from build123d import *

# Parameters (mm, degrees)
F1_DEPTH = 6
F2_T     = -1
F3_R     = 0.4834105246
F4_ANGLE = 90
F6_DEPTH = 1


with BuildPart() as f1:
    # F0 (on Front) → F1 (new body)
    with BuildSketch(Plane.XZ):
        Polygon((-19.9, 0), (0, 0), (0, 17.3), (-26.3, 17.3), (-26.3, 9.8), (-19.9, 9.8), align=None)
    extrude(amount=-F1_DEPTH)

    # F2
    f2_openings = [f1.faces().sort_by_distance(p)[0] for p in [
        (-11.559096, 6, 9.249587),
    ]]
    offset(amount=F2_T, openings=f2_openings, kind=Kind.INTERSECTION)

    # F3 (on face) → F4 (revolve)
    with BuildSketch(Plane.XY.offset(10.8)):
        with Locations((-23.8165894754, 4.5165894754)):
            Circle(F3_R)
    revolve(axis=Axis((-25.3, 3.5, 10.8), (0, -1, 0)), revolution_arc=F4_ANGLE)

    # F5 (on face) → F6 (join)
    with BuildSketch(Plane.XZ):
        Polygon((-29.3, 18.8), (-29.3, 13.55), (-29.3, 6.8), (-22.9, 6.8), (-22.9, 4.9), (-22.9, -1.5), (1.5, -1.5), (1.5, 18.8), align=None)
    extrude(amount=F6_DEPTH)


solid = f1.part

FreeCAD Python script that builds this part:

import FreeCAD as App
import Part
import Sketcher
Q = App.Units.Quantity


def faces_at(feature, points):
    """Names of the faces that lie closest to the given points."""
    faces = feature.Shape.Faces
    near = lambda p: min(range(len(faces)), key=lambda i: faces[i].distToShape(Part.Vertex(*p))[0])
    return sorted({f"Face{near(p) + 1}" for p in points})


def add_polygon(sketch, points):
    """Adds a closed chain of lines whose ends are joined by coincident constraints."""
    first, n = sketch.GeometryCount, len(points)
    for a, b in zip(points, points[1:] + points[:1]):
        sketch.addGeometry(Part.LineSegment(App.Vector(*a, 0), App.Vector(*b, 0)), False)
    for i in range(n):
        sketch.addConstraint(Sketcher.Constraint("Coincident", first + i, 2, first + (i + 1) % n, 1))

doc = App.newDocument("Part")
body = doc.addObject("PartDesign::Body", "Body")

# Sketch on XZ plane
sketch1 = body.newObject("Sketcher::SketchObject", "Sketch")
sketch1.AttachmentSupport = (doc.getObject("XZ_Plane"), [""])
sketch1.MapMode = "FlatFace"
add_polygon(sketch1, [(-20, 0), (0, 0), (0, 17), (-26, 17), (-26, 10), (-20, 10)])  # lines 0-5
sketch1.addConstraint([
    Sketcher.Constraint("Horizontal", 0),
    Sketcher.Constraint("Vertical", 1),
    Sketcher.Constraint("Horizontal", 2),
    Sketcher.Constraint("Vertical", 3),
    Sketcher.Constraint("Horizontal", 4),
    Sketcher.Constraint("Vertical", 5),
    Sketcher.Constraint("Coincident", 0, 2, -1, 1),
    Sketcher.Constraint("DistanceX", 0, 1, 0, 2, Q("19.9 mm")),
    Sketcher.Constraint("DistanceX", 2, 2, 2, 1, Q("26.3 mm")),
    Sketcher.Constraint("DistanceY", 1, 1, 1, 2, Q("17.3 mm")),
    Sketcher.Constraint("DistanceY", 3, 2, 3, 1, Q("7.5 mm")),
])
pad1 = body.newObject("PartDesign::Pad", "Pad")
pad1.Profile = sketch1
pad1.Length = 6
pad1.Reversed = True
doc.recompute()

thickness = body.newObject("PartDesign::Thickness", "Thickness")
thickness.Base = (pad1, faces_at(pad1, [(-13.15, 6, 8.65)]))
thickness.Value = 1
thickness.Reversed = True
thickness.Join = "Intersection"

# Sketch on XY plane
sketch2 = body.newObject("Sketcher::SketchObject", "Sketch001")
sketch2.AttachmentSupport = (doc.getObject("XY_Plane"), [""])
sketch2.MapMode = "FlatFace"
sketch2.AttachmentOffset = App.Placement(App.Vector(0, 0, 10.8), App.Rotation())
sketch2.addGeometry(Part.Circle(App.Vector(-23.82, 4.52, 0), App.Vector(0, 0, 1), 0.48), False)
sketch2.addGeometry(Part.LineSegment(App.Vector(-25.3, 4.52, 0), App.Vector(-25.3, -5.48, 0)), True)  # axis
sketch2.addConstraint([
    Sketcher.Constraint("Vertical", 1),
    Sketcher.Constraint("Horizontal", 0, 3, 1, 1),
    Sketcher.Constraint("DistanceY", 1, 2, 1, 1, Q("10 mm")),
    Sketcher.Constraint("DistanceX", 1, 1, -1, 1, Q("25.3 mm")),
    Sketcher.Constraint("Diameter", 0, Q("0.966821 mm")),
    Sketcher.Constraint("DistanceX", 0, 3, -1, 1, Q("23.816589 mm")),
    Sketcher.Constraint("DistanceY", -1, 1, 0, 3, Q("4.516589 mm")),
])
revolution = body.newObject("PartDesign::Revolution", "Revolution")
revolution.Profile = sketch2
revolution.ReferenceAxis = (sketch2, ["Axis0"])
revolution.Angle = 90

# Sketch on XZ plane
sketch3 = body.newObject("Sketcher::SketchObject", "Sketch002")
sketch3.AttachmentSupport = (doc.getObject("XZ_Plane"), [""])
sketch3.MapMode = "FlatFace"
add_polygon(sketch3, [(-29, 19), (-29, 7), (-23, 7), (-23, -2), (2, -2), (2, 19)])  # lines 0-5
sketch3.addConstraint([
    Sketcher.Constraint("Vertical", 0),
    Sketcher.Constraint("Horizontal", 1),
    Sketcher.Constraint("Vertical", 2),
    Sketcher.Constraint("Horizontal", 3),
    Sketcher.Constraint("Vertical", 4),
    Sketcher.Constraint("Horizontal", 5),
    Sketcher.Constraint("DistanceY", 0, 2, 0, 1, Q("12 mm")),
    Sketcher.Constraint("DistanceX", 1, 1, 1, 2, Q("6.4 mm")),
    Sketcher.Constraint("DistanceX", 3, 1, 3, 2, Q("24.4 mm")),
    Sketcher.Constraint("DistanceY", 2, 2, 2, 1, Q("8.3 mm")),
    Sketcher.Constraint("DistanceX", 0, 2, -1, 1, Q("29.3 mm")),
    Sketcher.Constraint("DistanceY", -1, 1, 0, 2, Q("6.8 mm")),
])
pad2 = body.newObject("PartDesign::Pad", "Pad001")
pad2.Profile = sketch3
pad2.Length = 1

doc.recompute()
